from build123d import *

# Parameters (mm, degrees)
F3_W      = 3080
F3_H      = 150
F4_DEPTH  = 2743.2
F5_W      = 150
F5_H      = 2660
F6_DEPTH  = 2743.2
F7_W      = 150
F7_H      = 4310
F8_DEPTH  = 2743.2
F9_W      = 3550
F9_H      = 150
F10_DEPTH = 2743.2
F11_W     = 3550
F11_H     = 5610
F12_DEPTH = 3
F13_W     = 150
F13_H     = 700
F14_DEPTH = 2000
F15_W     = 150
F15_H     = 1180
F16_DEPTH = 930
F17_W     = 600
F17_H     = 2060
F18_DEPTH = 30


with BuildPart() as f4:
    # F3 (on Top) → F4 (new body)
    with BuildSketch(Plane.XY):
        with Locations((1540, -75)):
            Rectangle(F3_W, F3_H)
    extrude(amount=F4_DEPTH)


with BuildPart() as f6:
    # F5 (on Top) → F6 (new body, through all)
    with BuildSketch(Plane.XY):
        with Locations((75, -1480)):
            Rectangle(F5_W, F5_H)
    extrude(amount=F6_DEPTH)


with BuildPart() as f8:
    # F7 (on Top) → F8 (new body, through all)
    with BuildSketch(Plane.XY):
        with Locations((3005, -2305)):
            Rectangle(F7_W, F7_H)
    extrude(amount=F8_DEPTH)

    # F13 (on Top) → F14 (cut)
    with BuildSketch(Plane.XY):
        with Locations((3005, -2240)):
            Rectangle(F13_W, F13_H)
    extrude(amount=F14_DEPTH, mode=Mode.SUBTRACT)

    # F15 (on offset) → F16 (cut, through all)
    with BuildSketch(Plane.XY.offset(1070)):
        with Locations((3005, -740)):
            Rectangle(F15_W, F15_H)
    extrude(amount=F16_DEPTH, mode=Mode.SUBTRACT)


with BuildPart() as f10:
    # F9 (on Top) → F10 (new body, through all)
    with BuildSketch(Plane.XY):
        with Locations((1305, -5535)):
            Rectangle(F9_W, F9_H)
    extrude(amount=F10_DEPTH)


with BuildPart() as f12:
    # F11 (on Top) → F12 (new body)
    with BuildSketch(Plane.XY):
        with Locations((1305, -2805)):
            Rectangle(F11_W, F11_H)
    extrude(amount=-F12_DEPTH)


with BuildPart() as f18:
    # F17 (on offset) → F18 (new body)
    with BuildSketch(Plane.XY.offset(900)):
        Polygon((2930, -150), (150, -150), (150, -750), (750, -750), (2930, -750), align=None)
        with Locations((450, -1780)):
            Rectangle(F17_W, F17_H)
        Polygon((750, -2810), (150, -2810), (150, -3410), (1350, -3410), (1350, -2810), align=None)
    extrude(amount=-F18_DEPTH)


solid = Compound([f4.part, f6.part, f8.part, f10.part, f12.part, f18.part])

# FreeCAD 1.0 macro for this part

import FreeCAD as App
import Part
import Sketcher
from FreeCAD import Vector

doc = App.newDocument("Part")
params = doc.addObject("Spreadsheet::Sheet", "Params")
for row, (alias, value) in enumerate([
    ("sketch1_width", "3080 mm"),
    ("sketch1_height", "150 mm"),
    ("pad1_length", "2743.2 mm"),
    ("sketch2_width", "150 mm"),
    ("sketch2_height", "2660 mm"),
    ("pad2_length", "2743.2 mm"),
    ("sketch3_width", "150 mm"),
    ("sketch3_height", "4310 mm"),
    ("pad3_length", "2743.2 mm"),
    ("sketch4_width", "150 mm"),
    ("sketch4_height", "700 mm"),
    ("pocket1_length", "2000 mm"),
    ("sketch5_width", "150 mm"),
    ("sketch5_height", "1180 mm"),
    ("pocket2_length", "930 mm"),
    ("sketch6_width", "3550 mm"),
    ("sketch6_height", "150 mm"),
    ("pad4_length", "2743.2 mm"),
    ("sketch7_width", "3550 mm"),
    ("sketch7_height", "5610 mm"),
    ("pad5_length", "3 mm"),
    ("sketch8_width", "2780 mm"),
    ("sketch8_width2", "1200 mm"),
    ("sketch8_width3", "600 mm"),
    ("sketch8_height", "3260 mm"),
    ("pad6_length", "30 mm"),
], start=1):
    params.set(f"A{row}", alias)
    params.set(f"B{row}", "=" + value)
    params.setAlias(f"B{row}", alias)

body = doc.addObject("PartDesign::Body", "Body")

sketch1 = body.newObject("Sketcher::SketchObject", "Sketch")
sketch1.AttachmentSupport = (doc.getObject("XY_Plane"), [""])
sketch1.MapMode = "FlatFace"
sketch1.addGeometry(Part.LineSegment(Vector(0, 0, 0), Vector(0, -150, 0)), False)
sketch1.addGeometry(Part.LineSegment(Vector(0, -150, 0), Vector(3080, -150, 0)), False)
sketch1.addGeometry(Part.LineSegment(Vector(3080, -150, 0), Vector(3080, 0, 0)), False)
sketch1.addGeometry(Part.LineSegment(Vector(3080, 0, 0), Vector(0, 0, 0)), False)
sketch1.addConstraint(Sketcher.Constraint("Coincident", 0, 2, 1, 1))
sketch1.addConstraint(Sketcher.Constraint("Coincident", 1, 2, 2, 1))
sketch1.addConstraint(Sketcher.Constraint("Coincident", 2, 2, 3, 1))
sketch1.addConstraint(Sketcher.Constraint("Coincident", 3, 2, 0, 1))
sketch1.addConstraint(Sketcher.Constraint("Vertical", 0))
sketch1.addConstraint(Sketcher.Constraint("Horizontal", 1))
sketch1.addConstraint(Sketcher.Constraint("Vertical", 2))
sketch1.addConstraint(Sketcher.Constraint("Horizontal", 3))
sketch1.addConstraint(Sketcher.Constraint("Coincident", 3, 2, -1, 1))
sketch1.addConstraint(Sketcher.Constraint("DistanceX", 1, 1, 1, 2, 3080.0))
sketch1.addConstraint(Sketcher.Constraint("DistanceY", 0, 2, 0, 1, 150.0))
sketch1.setExpression("Constraints[9]", "Params.sketch1_width")
sketch1.setExpression("Constraints[10]", "Params.sketch1_height")
pad1 = body.newObject("PartDesign::Pad", "Pad")
pad1.Profile = sketch1
pad1.setExpression("Length", "Params.pad1_length")
body2 = doc.addObject("PartDesign::Body", "Body001")

sketch2 = body2.newObject("Sketcher::SketchObject", "Sketch001")
sketch2.AttachmentSupport = (doc.getObject("XY_Plane001"), [""])
sketch2.MapMode = "FlatFace"
sketch2.addGeometry(Part.LineSegment(Vector(0, -150, 0), Vector(0, -2810, 0)), False)
sketch2.addGeometry(Part.LineSegment(Vector(0, -2810, 0), Vector(150, -2810, 0)), False)
sketch2.addGeometry(Part.LineSegment(Vector(150, -2810, 0), Vector(150, -150, 0)), False)
sketch2.addGeometry(Part.LineSegment(Vector(150, -150, 0), Vector(0, -150, 0)), False)
sketch2.addConstraint(Sketcher.Constraint("Coincident", 0, 2, 1, 1))
sketch2.addConstraint(Sketcher.Constraint("Coincident", 1, 2, 2, 1))
sketch2.addConstraint(Sketcher.Constraint("Coincident", 2, 2, 3, 1))
sketch2.addConstraint(Sketcher.Constraint("Coincident", 3, 2, 0, 1))
sketch2.addConstraint(Sketcher.Constraint("Vertical", 0))
sketch2.addConstraint(Sketcher.Constraint("Horizontal", 1))
sketch2.addConstraint(Sketcher.Constraint("Vertical", 2))
sketch2.addConstraint(Sketcher.Constraint("Horizontal", 3))
sketch2.addConstraint(Sketcher.Constraint("PointOnObject", 0, 2, -2))
sketch2.addConstraint(Sketcher.Constraint("DistanceX", 1, 1, 1, 2, 150.0))
sketch2.addConstraint(Sketcher.Constraint("DistanceY", 0, 2, 0, 1, 2660.0))
sketch2.addConstraint(Sketcher.Constraint("DistanceY", 0, 2, -1, 1, 2810.0))
sketch2.setExpression("Constraints[9]", "Params.sketch2_width")
sketch2.setExpression("Constraints[10]", "Params.sketch2_height")
pad2 = body2.newObject("PartDesign::Pad", "Pad001")
pad2.Profile = sketch2
pad2.setExpression("Length", "Params.pad2_length")
body3 = doc.addObject("PartDesign::Body", "Body002")

sketch3 = body3.newObject("Sketcher::SketchObject", "Sketch002")
sketch3.AttachmentSupport = (doc.getObject("XY_Plane002"), [""])
sketch3.MapMode = "FlatFace"
sketch3.addGeometry(Part.LineSegment(Vector(2930, -150, 0), Vector(2930, -4460, 0)), False)
sketch3.addGeometry(Part.LineSegment(Vector(2930, -4460, 0), Vector(3080, -4460, 0)), False)
sketch3.addGeometry(Part.LineSegment(Vector(3080, -4460, 0), Vector(3080, -150, 0)), False)
sketch3.addGeometry(Part.LineSegment(Vector(3080, -150, 0), Vector(2930, -150, 0)), False)
sketch3.addConstraint(Sketcher.Constraint("Coincident", 0, 2, 1, 1))
sketch3.addConstraint(Sketcher.Constraint("Coincident", 1, 2, 2, 1))
sketch3.addConstraint(Sketcher.Constraint("Coincident", 2, 2, 3, 1))
sketch3.addConstraint(Sketcher.Constraint("Coincident", 3, 2, 0, 1))
sketch3.addConstraint(Sketcher.Constraint("Vertical", 0))
sketch3.addConstraint(Sketcher.Constraint("Horizontal", 1))
sketch3.addConstraint(Sketcher.Constraint("Vertical", 2))
sketch3.addConstraint(Sketcher.Constraint("Horizontal", 3))
sketch3.addConstraint(Sketcher.Constraint("DistanceX", 1, 1, 1, 2, 150.0))
sketch3.addConstraint(Sketcher.Constraint("DistanceY", 0, 2, 0, 1, 4310.0))
sketch3.addConstraint(Sketcher.Constraint("DistanceX", -1, 1, 0, 2, 2930.0))
sketch3.addConstraint(Sketcher.Constraint("DistanceY", 0, 2, -1, 1, 4460.0))
sketch3.setExpression("Constraints[8]", "Params.sketch3_width")
sketch3.setExpression("Constraints[9]", "Params.sketch3_height")
pad3 = body3.newObject("PartDesign::Pad", "Pad002")
pad3.Profile = sketch3
pad3.setExpression("Length", "Params.pad3_length")

sketch4 = body3.newObject("Sketcher::SketchObject", "Sketch003")
sketch4.AttachmentSupport = (doc.getObject("XY_Plane002"), [""])
sketch4.MapMode = "FlatFace"
sketch4.addGeometry(Part.LineSegment(Vector(2930, -1890, 0), Vector(2930, -2590, 0)), False)
sketch4.addGeometry(Part.LineSegment(Vector(2930, -2590, 0), Vector(3080, -2590, 0)), False)
sketch4.addGeometry(Part.LineSegment(Vector(3080, -2590, 0), Vector(3080, -1890, 0)), False)
sketch4.addGeometry(Part.LineSegment(Vector(3080, -1890, 0), Vector(2930, -1890, 0)), False)
sketch4.addConstraint(Sketcher.Constraint("Coincident", 0, 2, 1, 1))
sketch4.addConstraint(Sketcher.Constraint("Coincident", 1, 2, 2, 1))
sketch4.addConstraint(Sketcher.Constraint("Coincident", 2, 2, 3, 1))
sketch4.addConstraint(Sketcher.Constraint("Coincident", 3, 2, 0, 1))
sketch4.addConstraint(Sketcher.Constraint("Vertical", 0))
sketch4.addConstraint(Sketcher.Constraint("Horizontal", 1))
sketch4.addConstraint(Sketcher.Constraint("Vertical", 2))
sketch4.addConstraint(Sketcher.Constraint("Horizontal", 3))
sketch4.addConstraint(Sketcher.Constraint("DistanceX", 1, 1, 1, 2, 150.0))
sketch4.addConstraint(Sketcher.Constraint("DistanceY", 0, 2, 0, 1, 700.0))
sketch4.addConstraint(Sketcher.Constraint("DistanceX", -1, 1, 0, 2, 2930.0))
sketch4.addConstraint(Sketcher.Constraint("DistanceY", 0, 2, -1, 1, 2590.0))
sketch4.setExpression("Constraints[8]", "Params.sketch4_width")
sketch4.setExpression("Constraints[9]", "Params.sketch4_height")
pocket1 = body3.newObject("PartDesign::Pocket", "Pocket")
pocket1.Profile = sketch4
pocket1.setExpression("Length", "Params.pocket1_length")
pocket1.Reversed = True

sketch5 = body3.newObject("Sketcher::SketchObject", "Sketch004")
sketch5.AttachmentSupport = (doc.getObject("XY_Plane002"), [""])
sketch5.MapMode = "FlatFace"
sketch5.AttachmentOffset = App.Placement(Vector(0, 0, 1070), App.Rotation())
sketch5.addGeometry(Part.LineSegment(Vector(2930, -150, 0), Vector(2930, -1330, 0)), False)
sketch5.addGeometry(Part.LineSegment(Vector(2930, -1330, 0), Vector(3080, -1330, 0)), False)
sketch5.addGeometry(Part.LineSegment(Vector(3080, -1330, 0), Vector(3080, -150, 0)), False)
sketch5.addGeometry(Part.LineSegment(Vector(3080, -150, 0), Vector(2930, -150, 0)), False)
sketch5.addConstraint(Sketcher.Constraint("Coincident", 0, 2, 1, 1))
sketch5.addConstraint(Sketcher.Constraint("Coincident", 1, 2, 2, 1))
sketch5.addConstraint(Sketcher.Constraint("Coincident", 2, 2, 3, 1))
sketch5.addConstraint(Sketcher.Constraint("Coincident", 3, 2, 0, 1))
sketch5.addConstraint(Sketcher.Constraint("Vertical", 0))
sketch5.addConstraint(Sketcher.Constraint("Horizontal", 1))
sketch5.addConstraint(Sketcher.Constraint("Vertical", 2))
sketch5.addConstraint(Sketcher.Constraint("Horizontal", 3))
sketch5.addConstraint(Sketcher.Constraint("DistanceX", 1, 1, 1, 2, 150.0))
sketch5.addConstraint(Sketcher.Constraint("DistanceY", 0, 2, 0, 1, 1180.0))
sketch5.addConstraint(Sketcher.Constraint("DistanceX", -1, 1, 0, 2, 2930.0))
sketch5.addConstraint(Sketcher.Constraint("DistanceY", 0, 2, -1, 1, 1330.0))
sketch5.setExpression("Constraints[8]", "Params.sketch5_width")
sketch5.setExpression("Constraints[9]", "Params.sketch5_height")
pocket2 = body3.newObject("PartDesign::Pocket", "Pocket001")
pocket2.Profile = sketch5
pocket2.setExpression("Length", "Params.pocket2_length")
pocket2.Reversed = True
body4 = doc.addObject("PartDesign::Body", "Body003")

sketch6 = body4.newObject("Sketcher::SketchObject", "Sketch005")
sketch6.AttachmentSupport = (doc.getObject("XY_Plane003"), [""])
sketch6.MapMode = "FlatFace"
sketch6.addGeometry(Part.LineSegment(Vector(-470, -5460, 0), Vector(-470, -5610, 0)), False)
sketch6.addGeometry(Part.LineSegment(Vector(-470, -5610, 0), Vector(3080, -5610, 0)), False)
sketch6.addGeometry(Part.LineSegment(Vector(3080, -5610, 0), Vector(3080, -5460, 0)), False)
sketch6.addGeometry(Part.LineSegment(Vector(3080, -5460, 0), Vector(-470, -5460, 0)), False)
sketch6.addConstraint(Sketcher.Constraint("Coincident", 0, 2, 1, 1))
sketch6.addConstraint(Sketcher.Constraint("Coincident", 1, 2, 2, 1))
sketch6.addConstraint(Sketcher.Constraint("Coincident", 2, 2, 3, 1))
sketch6.addConstraint(Sketcher.Constraint("Coincident", 3, 2, 0, 1))
sketch6.addConstraint(Sketcher.Constraint("Vertical", 0))
sketch6.addConstraint(Sketcher.Constraint("Horizontal", 1))
sketch6.addConstraint(Sketcher.Constraint("Vertical", 2))
sketch6.addConstraint(Sketcher.Constraint("Horizontal", 3))
sketch6.addConstraint(Sketcher.Constraint("DistanceX", 1, 1, 1, 2, 3550.0))
sketch6.addConstraint(Sketcher.Constraint("DistanceY", 0, 2, 0, 1, 150.0))
sketch6.addConstraint(Sketcher.Constraint("DistanceX", 0, 2, -1, 1, 470.0))
sketch6.addConstraint(Sketcher.Constraint("DistanceY", 0, 2, -1, 1, 5610.0))
sketch6.setExpression("Constraints[8]", "Params.sketch6_width")
sketch6.setExpression("Constraints[9]", "Params.sketch6_height")
pad4 = body4.newObject("PartDesign::Pad", "Pad003")
pad4.Profile = sketch6
pad4.setExpression("Length", "Params.pad4_length")
body5 = doc.addObject("PartDesign::Body", "Body004")

sketch7 = body5.newObject("Sketcher::SketchObject", "Sketch006")
sketch7.AttachmentSupport = (doc.getObject("XY_Plane004"), [""])
sketch7.MapMode = "FlatFace"
sketch7.addGeometry(Part.LineSegment(Vector(-470, 0, 0), Vector(-470, -5610, 0)), False)
sketch7.addGeometry(Part.LineSegment(Vector(-470, -5610, 0), Vector(3080, -5610, 0)), False)
sketch7.addGeometry(Part.LineSegment(Vector(3080, -5610, 0), Vector(3080, 0, 0)), False)
sketch7.addGeometry(Part.LineSegment(Vector(3080, 0, 0), Vector(-470, 0, 0)), False)
sketch7.addConstraint(Sketcher.Constraint("Coincident", 0, 2, 1, 1))
sketch7.addConstraint(Sketcher.Constraint("Coincident", 1, 2, 2, 1))
sketch7.addConstraint(Sketcher.Constraint("Coincident", 2, 2, 3, 1))
sketch7.addConstraint(Sketcher.Constraint("Coincident", 3, 2, 0, 1))
sketch7.addConstraint(Sketcher.Constraint("Vertical", 0))
sketch7.addConstraint(Sketcher.Constraint("Horizontal", 1))
sketch7.addConstraint(Sketcher.Constraint("Vertical", 2))
sketch7.addConstraint(Sketcher.Constraint("Horizontal", 3))
sketch7.addConstraint(Sketcher.Constraint("PointOnObject", 2, 2, -1))
sketch7.addConstraint(Sketcher.Constraint("DistanceX", 1, 1, 1, 2, 3550.0))
sketch7.addConstraint(Sketcher.Constraint("DistanceY", 0, 2, 0, 1, 5610.0))
sketch7.addConstraint(Sketcher.Constraint("DistanceX", 0, 2, -1, 1, 470.0))
sketch7.setExpression("Constraints[9]", "Params.sketch7_width")
sketch7.setExpression("Constraints[10]", "Params.sketch7_height")
pad5 = body5.newObject("PartDesign::Pad", "Pad004")
pad5.Profile = sketch7
pad5.setExpression("Length", "Params.pad5_length")
pad5.Reversed = True
body6 = doc.addObject("PartDesign::Body", "Body005")

sketch8 = body6.newObject("Sketcher::SketchObject", "Sketch007")
sketch8.AttachmentSupport = (doc.getObject("XY_Plane005"), [""])
sketch8.MapMode = "FlatFace"
sketch8.AttachmentOffset = App.Placement(Vector(0, 0, 900), App.Rotation())
sketch8.addGeometry(Part.LineSegment(Vector(2930, -150, 0), Vector(150, -150, 0)), False)
sketch8.addGeometry(Part.LineSegment(Vector(150, -150, 0), Vector(150, -3410, 0)), False)
sketch8.addGeometry(Part.LineSegment(Vector(150, -3410, 0), Vector(1350, -3410, 0)), False)
sketch8.addGeometry(Part.LineSegment(Vector(1350, -3410, 0), Vector(1350, -2810, 0)), False)
sketch8.addGeometry(Part.LineSegment(Vector(1350, -2810, 0), Vector(750, -2810, 0)), False)
sketch8.addGeometry(Part.LineSegment(Vector(750, -2810, 0), Vector(750, -750, 0)), False)
sketch8.addGeometry(Part.LineSegment(Vector(750, -750, 0), Vector(2930, -750, 0)), False)
sketch8.addGeometry(Part.LineSegment(Vector(2930, -750, 0), Vector(2930, -150, 0)), False)
sketch8.addConstraint(Sketcher.Constraint("Coincident", 0, 2, 1, 1))
sketch8.addConstraint(Sketcher.Constraint("Coincident", 1, 2, 2, 1))
sketch8.addConstraint(Sketcher.Constraint("Coincident", 2, 2, 3, 1))
sketch8.addConstraint(Sketcher.Constraint("Coincident", 3, 2, 4, 1))
sketch8.addConstraint(Sketcher.Constraint("Coincident", 4, 2, 5, 1))
sketch8.addConstraint(Sketcher.Constraint("Coincident", 5, 2, 6, 1))
sketch8.addConstraint(Sketcher.Constraint("Coincident", 6, 2, 7, 1))
sketch8.addConstraint(Sketcher.Constraint("Coincident", 7, 2, 0, 1))
sketch8.addConstraint(Sketcher.Constraint("Horizontal", 0))
sketch8.addConstraint(Sketcher.Constraint("Vertical", 1))
sketch8.addConstraint(Sketcher.Constraint("Horizontal", 2))
sketch8.addConstraint(Sketcher.Constraint("Vertical", 3))
sketch8.addConstraint(Sketcher.Constraint("Horizontal", 4))
sketch8.addConstraint(Sketcher.Constraint("Vertical", 5))
sketch8.addConstraint(Sketcher.Constraint("Horizontal", 6))
sketch8.addConstraint(Sketcher.Constraint("Vertical", 7))
sketch8.addConstraint(Sketcher.Constraint("Equal", 4, 3))
sketch8.addConstraint(Sketcher.Constraint("Equal", 3, 7))
sketch8.addConstraint(Sketcher.Constraint("DistanceX", 0, 2, 0, 1, 2780.0))
sketch8.addConstraint(Sketcher.Constraint("DistanceX", 2, 1, 2, 2, 1200.0))
sketch8.addConstraint(Sketcher.Constraint("DistanceX", 4, 2, 4, 1, 600.0))
sketch8.addConstraint(Sketcher.Constraint("DistanceY", 1, 2, 1, 1, 3260.0))
sketch8.addConstraint(Sketcher.Constraint("DistanceX", -1, 1, 0, 2, 150.0))
sketch8.addConstraint(Sketcher.Constraint("DistanceY", 0, 2, -1, 1, 150.0))
sketch8.setExpression("Constraints[18]", "Params.sketch8_width")
sketch8.setExpression("Constraints[19]", "Params.sketch8_width2")
sketch8.setExpression("Constraints[20]", "Params.sketch8_width3")
sketch8.setExpression("Constraints[21]", "Params.sketch8_height")
pad6 = body6.newObject("PartDesign::Pad", "Pad005")
pad6.Profile = sketch8
pad6.setExpression("Length", "Params.pad6_length")
pad6.Reversed = True

doc.recompute()
